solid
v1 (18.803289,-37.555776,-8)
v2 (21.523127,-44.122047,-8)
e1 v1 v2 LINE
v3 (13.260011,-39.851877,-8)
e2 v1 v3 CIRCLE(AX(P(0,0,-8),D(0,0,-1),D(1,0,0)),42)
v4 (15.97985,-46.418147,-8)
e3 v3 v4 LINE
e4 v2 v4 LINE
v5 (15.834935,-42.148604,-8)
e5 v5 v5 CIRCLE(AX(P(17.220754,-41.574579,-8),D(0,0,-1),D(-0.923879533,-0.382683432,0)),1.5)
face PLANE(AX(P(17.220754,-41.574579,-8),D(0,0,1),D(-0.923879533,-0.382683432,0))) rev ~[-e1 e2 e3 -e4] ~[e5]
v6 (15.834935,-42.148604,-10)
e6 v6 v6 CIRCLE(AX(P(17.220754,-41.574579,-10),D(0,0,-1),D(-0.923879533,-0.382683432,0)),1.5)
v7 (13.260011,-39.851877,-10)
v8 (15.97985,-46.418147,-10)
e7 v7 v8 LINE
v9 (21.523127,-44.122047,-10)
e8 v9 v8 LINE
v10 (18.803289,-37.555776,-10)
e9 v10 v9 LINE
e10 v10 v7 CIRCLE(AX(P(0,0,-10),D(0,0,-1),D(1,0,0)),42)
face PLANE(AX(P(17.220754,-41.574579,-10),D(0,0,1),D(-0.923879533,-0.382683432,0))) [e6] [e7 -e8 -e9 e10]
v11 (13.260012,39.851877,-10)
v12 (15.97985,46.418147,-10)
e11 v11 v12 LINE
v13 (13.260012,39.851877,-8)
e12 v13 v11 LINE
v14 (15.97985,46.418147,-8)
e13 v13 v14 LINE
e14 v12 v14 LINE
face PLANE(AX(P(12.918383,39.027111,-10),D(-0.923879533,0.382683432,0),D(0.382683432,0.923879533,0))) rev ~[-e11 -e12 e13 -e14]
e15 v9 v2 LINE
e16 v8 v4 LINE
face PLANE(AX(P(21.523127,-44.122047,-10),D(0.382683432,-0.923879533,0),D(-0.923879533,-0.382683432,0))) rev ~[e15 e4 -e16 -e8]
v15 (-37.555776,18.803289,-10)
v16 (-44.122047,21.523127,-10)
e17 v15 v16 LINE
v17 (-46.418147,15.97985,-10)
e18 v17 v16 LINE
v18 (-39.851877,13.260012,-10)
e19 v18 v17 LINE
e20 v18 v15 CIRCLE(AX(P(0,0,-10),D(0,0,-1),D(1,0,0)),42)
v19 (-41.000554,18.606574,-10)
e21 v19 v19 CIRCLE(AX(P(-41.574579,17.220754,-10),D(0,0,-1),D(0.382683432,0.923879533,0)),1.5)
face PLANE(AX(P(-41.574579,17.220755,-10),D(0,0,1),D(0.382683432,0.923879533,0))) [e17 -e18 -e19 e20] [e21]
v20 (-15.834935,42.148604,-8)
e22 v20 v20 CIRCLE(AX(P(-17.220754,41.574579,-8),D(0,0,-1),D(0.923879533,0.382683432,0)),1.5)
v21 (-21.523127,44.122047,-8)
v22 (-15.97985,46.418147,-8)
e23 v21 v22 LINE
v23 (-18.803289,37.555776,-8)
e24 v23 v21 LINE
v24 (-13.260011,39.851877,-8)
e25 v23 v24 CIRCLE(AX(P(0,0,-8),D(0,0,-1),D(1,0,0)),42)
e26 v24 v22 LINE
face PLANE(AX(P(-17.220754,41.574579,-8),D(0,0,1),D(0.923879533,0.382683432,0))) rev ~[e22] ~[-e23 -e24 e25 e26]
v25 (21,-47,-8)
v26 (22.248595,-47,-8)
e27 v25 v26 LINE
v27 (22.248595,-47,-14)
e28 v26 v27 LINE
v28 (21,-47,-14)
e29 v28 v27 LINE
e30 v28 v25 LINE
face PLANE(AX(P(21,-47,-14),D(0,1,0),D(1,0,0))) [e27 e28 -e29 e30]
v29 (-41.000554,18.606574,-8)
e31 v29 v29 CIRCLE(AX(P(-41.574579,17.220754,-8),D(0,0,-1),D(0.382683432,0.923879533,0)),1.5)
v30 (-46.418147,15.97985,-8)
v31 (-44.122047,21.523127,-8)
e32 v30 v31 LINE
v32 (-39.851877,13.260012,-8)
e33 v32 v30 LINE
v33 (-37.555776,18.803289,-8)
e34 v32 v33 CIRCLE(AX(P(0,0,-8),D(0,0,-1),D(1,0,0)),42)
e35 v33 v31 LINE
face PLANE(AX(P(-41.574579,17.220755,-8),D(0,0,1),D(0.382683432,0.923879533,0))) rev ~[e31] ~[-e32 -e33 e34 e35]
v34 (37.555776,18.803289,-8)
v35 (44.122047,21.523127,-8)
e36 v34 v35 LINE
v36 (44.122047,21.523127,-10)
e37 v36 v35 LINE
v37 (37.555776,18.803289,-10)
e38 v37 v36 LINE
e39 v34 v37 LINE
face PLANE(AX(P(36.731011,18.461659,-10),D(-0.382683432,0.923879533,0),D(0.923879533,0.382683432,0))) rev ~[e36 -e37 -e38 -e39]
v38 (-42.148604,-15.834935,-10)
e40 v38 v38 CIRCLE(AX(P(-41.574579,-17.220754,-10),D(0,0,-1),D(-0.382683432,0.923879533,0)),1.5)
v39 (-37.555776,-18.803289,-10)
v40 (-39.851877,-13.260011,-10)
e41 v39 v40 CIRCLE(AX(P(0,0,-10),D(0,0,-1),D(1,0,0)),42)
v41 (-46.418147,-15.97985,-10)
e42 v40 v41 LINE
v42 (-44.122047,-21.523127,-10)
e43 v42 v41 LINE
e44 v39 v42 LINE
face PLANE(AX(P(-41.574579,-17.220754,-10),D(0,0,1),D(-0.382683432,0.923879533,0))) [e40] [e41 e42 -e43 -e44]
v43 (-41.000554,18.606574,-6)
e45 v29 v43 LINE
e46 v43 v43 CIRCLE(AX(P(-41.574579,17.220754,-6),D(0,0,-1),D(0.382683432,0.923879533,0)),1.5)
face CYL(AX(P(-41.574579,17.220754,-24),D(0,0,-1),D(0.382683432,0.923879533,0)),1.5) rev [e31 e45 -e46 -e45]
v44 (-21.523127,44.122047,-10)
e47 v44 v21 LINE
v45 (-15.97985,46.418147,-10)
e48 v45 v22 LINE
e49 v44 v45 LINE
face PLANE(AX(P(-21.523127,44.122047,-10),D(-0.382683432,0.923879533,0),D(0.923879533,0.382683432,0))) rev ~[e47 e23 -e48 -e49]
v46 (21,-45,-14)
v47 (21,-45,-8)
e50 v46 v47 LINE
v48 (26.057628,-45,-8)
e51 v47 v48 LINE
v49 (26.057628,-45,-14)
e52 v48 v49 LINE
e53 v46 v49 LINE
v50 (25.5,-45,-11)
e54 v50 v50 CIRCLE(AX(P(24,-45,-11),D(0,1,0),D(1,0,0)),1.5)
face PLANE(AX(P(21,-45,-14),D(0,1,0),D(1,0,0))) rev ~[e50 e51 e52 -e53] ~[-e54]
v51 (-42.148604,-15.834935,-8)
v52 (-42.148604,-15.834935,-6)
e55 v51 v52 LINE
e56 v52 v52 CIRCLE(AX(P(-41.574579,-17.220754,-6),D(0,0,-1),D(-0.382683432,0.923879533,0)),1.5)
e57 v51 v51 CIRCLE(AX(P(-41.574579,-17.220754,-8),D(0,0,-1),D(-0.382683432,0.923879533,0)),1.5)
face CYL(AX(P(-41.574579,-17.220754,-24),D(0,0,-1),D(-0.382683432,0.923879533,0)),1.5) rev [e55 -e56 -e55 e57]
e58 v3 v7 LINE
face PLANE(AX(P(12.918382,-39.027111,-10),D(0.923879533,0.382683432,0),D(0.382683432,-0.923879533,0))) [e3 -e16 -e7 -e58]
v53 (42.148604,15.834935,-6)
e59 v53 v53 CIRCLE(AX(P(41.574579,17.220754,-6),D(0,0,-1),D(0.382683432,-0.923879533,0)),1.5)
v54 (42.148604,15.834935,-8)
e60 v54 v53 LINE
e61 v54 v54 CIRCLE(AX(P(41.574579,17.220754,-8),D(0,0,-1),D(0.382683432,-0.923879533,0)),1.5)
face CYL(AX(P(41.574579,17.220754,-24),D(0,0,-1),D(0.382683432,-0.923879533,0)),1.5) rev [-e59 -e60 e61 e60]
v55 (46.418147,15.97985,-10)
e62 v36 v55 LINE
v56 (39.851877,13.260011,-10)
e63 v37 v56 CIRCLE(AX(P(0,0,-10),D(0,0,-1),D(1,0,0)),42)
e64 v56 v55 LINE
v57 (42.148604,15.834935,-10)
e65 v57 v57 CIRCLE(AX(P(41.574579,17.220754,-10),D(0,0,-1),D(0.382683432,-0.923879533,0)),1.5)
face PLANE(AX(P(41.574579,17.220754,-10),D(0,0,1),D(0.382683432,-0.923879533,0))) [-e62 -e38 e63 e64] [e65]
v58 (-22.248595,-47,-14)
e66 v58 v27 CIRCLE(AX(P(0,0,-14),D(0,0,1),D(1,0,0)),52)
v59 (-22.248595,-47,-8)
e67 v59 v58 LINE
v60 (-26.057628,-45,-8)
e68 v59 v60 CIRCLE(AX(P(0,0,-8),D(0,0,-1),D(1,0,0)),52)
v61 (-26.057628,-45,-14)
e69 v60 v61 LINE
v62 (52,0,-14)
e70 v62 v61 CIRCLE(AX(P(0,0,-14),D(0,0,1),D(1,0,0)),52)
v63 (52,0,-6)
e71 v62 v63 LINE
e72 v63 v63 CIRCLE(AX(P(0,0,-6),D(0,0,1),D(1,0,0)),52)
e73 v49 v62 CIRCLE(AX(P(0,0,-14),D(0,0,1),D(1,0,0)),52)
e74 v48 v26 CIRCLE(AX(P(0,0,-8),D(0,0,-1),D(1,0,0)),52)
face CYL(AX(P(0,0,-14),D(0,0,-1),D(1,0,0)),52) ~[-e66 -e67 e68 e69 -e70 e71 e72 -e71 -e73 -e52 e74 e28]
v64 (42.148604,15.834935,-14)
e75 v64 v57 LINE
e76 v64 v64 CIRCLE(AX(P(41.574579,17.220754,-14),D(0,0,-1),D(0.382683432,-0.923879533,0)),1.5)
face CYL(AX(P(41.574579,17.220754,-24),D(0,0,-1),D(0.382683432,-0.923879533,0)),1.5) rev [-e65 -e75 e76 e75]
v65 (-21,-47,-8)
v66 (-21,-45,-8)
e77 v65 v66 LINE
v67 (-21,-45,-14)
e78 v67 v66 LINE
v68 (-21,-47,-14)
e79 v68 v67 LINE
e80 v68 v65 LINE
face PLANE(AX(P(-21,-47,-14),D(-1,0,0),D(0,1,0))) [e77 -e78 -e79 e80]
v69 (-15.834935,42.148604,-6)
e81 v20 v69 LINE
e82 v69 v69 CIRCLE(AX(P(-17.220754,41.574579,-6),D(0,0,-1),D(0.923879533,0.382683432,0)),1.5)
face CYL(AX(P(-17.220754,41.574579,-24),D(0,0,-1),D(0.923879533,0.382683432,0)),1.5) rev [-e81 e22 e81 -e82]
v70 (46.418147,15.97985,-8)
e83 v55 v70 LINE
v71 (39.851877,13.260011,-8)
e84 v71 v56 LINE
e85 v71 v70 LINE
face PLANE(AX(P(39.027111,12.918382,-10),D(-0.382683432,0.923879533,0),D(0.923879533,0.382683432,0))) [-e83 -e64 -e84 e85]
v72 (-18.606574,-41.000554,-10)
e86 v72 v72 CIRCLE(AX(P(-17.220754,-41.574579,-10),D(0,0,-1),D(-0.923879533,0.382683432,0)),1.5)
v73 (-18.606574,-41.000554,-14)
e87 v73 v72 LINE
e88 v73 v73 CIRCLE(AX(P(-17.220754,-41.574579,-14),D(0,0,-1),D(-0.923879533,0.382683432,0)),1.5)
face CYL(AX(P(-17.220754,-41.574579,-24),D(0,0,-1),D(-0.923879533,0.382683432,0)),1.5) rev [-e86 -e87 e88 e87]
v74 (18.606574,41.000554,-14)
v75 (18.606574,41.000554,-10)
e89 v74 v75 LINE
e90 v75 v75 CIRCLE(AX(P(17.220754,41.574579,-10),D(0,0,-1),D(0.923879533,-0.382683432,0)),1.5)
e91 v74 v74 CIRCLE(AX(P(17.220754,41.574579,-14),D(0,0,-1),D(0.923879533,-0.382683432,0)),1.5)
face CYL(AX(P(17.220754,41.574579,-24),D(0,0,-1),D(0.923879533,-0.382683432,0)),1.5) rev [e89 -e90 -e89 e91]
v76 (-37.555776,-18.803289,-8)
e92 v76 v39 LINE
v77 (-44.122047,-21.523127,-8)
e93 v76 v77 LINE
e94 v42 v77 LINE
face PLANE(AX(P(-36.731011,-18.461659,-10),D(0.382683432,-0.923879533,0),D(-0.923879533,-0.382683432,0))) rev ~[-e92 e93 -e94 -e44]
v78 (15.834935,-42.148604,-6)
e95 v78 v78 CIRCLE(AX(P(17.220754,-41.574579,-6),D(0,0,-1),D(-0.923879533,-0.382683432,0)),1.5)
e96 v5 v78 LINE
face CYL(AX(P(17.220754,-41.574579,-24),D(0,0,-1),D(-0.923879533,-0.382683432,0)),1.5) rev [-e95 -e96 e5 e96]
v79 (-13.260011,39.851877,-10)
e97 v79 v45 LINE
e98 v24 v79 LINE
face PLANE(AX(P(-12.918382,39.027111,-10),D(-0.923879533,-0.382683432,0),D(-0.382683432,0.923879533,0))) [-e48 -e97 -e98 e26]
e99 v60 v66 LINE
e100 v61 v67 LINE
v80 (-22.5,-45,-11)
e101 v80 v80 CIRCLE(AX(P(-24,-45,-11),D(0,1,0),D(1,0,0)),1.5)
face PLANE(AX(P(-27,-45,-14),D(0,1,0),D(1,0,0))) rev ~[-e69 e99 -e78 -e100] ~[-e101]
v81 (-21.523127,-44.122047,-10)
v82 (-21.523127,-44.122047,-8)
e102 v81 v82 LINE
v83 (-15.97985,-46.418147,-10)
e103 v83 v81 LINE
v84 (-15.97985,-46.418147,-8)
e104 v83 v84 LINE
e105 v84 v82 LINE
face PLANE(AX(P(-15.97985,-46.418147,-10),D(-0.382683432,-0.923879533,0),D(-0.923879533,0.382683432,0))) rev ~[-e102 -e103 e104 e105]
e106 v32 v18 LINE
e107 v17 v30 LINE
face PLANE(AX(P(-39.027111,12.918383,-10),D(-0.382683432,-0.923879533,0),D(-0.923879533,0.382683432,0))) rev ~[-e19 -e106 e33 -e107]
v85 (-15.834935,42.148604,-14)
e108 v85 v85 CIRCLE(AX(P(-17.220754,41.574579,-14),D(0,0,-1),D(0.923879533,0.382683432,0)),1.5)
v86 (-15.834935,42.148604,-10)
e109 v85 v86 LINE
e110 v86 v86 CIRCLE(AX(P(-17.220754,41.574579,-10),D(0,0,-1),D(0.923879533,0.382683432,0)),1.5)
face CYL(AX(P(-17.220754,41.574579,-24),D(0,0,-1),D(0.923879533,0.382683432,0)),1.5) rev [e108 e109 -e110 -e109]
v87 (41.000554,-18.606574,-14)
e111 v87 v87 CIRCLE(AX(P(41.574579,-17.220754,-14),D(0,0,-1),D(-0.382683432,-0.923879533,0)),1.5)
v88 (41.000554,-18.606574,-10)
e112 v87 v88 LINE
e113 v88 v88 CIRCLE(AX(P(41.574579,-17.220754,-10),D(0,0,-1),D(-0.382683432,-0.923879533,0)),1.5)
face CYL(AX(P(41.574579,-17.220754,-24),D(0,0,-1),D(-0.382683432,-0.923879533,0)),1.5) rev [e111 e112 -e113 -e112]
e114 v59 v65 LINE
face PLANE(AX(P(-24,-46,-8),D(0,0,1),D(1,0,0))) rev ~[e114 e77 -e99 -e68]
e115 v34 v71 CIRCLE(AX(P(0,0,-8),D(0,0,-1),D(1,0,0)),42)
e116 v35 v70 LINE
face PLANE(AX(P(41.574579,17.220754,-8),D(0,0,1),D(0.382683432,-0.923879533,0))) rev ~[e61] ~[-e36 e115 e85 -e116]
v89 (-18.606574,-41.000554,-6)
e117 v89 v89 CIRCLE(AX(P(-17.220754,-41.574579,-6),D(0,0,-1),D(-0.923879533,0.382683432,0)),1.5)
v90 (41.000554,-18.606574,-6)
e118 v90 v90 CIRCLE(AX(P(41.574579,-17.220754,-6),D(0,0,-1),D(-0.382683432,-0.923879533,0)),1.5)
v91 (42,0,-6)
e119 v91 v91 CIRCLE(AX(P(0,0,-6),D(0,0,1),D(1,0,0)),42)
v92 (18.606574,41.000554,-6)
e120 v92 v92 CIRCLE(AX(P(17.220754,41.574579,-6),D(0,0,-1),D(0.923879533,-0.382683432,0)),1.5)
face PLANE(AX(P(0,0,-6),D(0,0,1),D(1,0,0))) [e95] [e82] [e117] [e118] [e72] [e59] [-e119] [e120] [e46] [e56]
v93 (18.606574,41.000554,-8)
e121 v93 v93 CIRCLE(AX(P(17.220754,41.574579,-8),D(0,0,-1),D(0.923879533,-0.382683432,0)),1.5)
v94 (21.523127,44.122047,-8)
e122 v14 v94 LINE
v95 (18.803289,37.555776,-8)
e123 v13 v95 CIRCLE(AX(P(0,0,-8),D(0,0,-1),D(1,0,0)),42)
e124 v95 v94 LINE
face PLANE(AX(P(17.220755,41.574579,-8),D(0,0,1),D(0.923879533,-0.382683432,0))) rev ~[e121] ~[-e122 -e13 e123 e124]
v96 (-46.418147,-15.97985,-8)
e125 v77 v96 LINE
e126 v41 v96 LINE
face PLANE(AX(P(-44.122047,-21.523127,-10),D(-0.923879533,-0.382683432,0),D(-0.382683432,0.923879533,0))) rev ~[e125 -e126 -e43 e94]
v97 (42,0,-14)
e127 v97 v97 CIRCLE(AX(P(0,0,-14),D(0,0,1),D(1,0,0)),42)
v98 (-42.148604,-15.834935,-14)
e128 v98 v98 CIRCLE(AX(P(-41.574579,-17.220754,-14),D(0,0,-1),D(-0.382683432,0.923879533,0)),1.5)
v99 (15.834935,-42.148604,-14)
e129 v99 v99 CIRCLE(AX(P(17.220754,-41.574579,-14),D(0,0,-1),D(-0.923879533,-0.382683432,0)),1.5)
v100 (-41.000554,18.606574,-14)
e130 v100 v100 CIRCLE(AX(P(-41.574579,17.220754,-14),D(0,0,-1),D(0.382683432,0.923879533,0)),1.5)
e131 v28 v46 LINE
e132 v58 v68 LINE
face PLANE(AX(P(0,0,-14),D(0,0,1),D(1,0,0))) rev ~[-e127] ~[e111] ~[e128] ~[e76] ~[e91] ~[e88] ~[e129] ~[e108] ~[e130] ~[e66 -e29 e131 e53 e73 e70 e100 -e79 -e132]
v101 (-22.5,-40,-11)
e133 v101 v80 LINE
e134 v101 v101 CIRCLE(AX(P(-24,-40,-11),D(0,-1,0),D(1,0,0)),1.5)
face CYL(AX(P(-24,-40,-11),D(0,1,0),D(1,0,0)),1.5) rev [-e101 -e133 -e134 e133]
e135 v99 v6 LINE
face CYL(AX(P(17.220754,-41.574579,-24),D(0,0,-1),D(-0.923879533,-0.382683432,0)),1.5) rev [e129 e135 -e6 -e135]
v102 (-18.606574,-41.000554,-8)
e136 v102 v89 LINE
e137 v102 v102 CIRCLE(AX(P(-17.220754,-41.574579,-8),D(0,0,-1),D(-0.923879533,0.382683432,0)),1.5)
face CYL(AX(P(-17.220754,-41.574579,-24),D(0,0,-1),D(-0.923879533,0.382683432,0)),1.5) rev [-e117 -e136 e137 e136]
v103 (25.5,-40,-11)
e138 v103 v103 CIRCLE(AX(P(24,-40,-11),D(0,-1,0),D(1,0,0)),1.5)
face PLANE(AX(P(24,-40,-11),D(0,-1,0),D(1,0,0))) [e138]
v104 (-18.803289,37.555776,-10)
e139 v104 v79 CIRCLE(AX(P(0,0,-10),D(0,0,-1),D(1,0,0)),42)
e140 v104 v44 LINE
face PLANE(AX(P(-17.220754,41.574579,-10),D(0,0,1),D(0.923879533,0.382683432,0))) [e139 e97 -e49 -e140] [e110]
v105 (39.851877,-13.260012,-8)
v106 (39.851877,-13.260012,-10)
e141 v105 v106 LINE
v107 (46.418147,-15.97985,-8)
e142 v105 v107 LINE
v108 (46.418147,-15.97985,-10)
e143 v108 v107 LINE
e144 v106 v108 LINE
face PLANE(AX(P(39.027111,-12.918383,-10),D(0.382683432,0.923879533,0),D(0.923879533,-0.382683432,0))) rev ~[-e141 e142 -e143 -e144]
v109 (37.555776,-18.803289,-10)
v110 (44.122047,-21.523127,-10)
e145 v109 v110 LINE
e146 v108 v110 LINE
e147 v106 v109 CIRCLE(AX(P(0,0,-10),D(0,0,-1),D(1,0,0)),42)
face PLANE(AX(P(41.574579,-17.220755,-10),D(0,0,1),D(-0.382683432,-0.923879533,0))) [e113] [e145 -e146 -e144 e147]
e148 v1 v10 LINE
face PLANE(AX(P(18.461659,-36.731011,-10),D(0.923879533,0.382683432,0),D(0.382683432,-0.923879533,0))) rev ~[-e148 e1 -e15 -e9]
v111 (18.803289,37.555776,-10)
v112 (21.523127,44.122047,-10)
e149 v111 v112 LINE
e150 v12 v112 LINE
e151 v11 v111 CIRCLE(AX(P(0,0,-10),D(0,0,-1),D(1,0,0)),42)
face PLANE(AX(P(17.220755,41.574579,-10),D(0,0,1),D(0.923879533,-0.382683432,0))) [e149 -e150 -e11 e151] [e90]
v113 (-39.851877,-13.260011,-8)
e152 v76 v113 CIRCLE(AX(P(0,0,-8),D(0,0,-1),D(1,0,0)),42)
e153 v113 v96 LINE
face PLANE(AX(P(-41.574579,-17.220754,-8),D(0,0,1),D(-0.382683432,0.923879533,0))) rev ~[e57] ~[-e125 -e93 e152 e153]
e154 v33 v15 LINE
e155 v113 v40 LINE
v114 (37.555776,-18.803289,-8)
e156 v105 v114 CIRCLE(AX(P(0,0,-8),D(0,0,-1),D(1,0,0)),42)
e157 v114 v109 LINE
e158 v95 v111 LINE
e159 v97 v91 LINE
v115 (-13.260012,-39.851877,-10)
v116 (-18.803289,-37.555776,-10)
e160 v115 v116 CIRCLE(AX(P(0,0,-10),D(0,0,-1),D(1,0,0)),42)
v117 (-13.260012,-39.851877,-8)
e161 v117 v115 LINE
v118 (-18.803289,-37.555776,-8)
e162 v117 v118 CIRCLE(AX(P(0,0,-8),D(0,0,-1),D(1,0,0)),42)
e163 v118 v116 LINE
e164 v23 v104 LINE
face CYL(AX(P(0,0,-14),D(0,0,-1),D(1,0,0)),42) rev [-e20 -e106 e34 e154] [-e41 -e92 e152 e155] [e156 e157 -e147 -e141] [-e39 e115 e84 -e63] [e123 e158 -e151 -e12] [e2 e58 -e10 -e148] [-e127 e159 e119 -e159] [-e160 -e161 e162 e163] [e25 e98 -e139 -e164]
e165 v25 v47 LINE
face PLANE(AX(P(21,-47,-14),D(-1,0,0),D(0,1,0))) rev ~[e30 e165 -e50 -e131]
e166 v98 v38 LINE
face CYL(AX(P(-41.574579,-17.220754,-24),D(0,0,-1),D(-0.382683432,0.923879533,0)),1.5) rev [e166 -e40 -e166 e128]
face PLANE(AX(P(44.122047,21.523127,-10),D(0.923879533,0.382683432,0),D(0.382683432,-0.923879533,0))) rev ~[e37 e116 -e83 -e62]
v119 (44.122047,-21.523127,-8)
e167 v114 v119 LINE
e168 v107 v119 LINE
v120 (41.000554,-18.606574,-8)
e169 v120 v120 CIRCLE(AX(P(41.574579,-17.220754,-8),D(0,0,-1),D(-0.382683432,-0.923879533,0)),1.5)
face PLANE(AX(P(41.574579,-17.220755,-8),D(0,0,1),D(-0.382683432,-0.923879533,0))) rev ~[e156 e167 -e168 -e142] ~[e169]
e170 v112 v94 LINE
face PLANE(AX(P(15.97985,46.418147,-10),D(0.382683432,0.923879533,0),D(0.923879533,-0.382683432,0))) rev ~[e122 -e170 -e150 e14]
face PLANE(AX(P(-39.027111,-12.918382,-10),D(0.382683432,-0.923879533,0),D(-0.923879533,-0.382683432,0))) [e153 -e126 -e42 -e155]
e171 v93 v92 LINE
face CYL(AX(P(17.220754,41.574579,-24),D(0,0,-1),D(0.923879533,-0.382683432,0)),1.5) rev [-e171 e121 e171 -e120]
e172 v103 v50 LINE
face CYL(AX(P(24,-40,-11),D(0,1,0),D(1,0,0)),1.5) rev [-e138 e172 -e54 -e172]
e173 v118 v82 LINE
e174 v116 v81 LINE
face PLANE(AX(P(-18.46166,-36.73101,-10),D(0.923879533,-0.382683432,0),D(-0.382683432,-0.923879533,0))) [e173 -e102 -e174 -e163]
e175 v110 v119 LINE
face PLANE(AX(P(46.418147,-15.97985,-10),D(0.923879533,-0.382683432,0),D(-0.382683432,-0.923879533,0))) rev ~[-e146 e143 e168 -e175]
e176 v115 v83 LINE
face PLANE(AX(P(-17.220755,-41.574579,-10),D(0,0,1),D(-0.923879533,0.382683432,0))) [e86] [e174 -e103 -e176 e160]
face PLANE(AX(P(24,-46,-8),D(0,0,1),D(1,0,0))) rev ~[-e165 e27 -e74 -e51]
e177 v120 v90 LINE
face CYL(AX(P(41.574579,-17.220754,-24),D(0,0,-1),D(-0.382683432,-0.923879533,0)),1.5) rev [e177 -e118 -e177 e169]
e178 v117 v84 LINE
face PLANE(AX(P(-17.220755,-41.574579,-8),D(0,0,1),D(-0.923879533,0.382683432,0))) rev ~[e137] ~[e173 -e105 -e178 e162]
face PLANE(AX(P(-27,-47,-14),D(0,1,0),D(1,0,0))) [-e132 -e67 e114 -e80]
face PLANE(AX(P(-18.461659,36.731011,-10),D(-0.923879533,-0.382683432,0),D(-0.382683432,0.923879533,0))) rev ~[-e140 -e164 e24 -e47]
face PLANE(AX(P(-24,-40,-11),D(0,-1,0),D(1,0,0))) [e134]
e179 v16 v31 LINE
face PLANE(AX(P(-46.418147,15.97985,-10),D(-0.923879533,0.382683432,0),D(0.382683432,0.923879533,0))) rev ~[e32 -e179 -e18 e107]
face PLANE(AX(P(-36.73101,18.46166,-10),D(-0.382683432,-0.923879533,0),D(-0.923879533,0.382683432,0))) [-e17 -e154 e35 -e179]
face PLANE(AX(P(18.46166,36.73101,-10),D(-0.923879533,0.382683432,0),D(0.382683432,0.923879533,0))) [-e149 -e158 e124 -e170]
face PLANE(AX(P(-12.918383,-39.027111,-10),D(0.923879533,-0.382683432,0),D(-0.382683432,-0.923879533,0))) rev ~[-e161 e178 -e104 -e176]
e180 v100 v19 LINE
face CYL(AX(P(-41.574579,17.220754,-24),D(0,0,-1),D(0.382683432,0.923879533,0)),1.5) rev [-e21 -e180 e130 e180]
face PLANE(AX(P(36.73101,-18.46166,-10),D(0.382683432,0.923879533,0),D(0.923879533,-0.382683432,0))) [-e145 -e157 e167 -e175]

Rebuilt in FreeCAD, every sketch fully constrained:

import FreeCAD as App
import Part
import Sketcher
from FreeCAD import Vector

doc = App.newDocument("Part")
body = doc.addObject("PartDesign::Body", "Body")

sketch1 = body.newObject("Sketcher::SketchObject", "Sketch")
sketch1.AttachmentSupport = (doc.getObject("XY_Plane"), [""])
sketch1.MapMode = "FlatFace"
sketch1.addGeometry(Part.Circle(Vector(0, 0, 0), Vector(0, 0, 1), 1.5), False)
sketch1.addConstraint([
    Sketcher.Constraint("Coincident", 0, 3, -1, 1),
    Sketcher.Constraint("Diameter", 0, 3.0),
])
pad1 = body.newObject("PartDesign::Pad", "Pad")
pad1.Profile = sketch1
pad1.Length = 20
body2 = doc.addObject("PartDesign::Body", "Body001")
doc.recompute()

body.Placement = App.Placement(Vector(-31.819805, 31.819805, -18), App.Rotation(Vector(0, 0, 1), 45))
boolean = body2.newObject("PartDesign::Boolean", "Boolean")
boolean.Type = "Fuse"
boolean.addObjects([body])
body3 = doc.addObject("PartDesign::Body", "Body002")

sketch2 = body3.newObject("Sketcher::SketchObject", "Sketch001")
sketch2.AttachmentSupport = (doc.getObject("XY_Plane002"), [""])
sketch2.MapMode = "FlatFace"
sketch2.AttachmentOffset = App.Placement(Vector(0, 0, -18), App.Rotation())
sketch2.addGeometry(Part.Circle(Vector(-45, 0, 0), Vector(0, 0, 1), 1.5), False)
sketch2.addConstraint([
    Sketcher.Constraint("PointOnObject", 0, 3, -1),
    Sketcher.Constraint("Diameter", 0, 3.0),
    Sketcher.Constraint("DistanceX", 0, 3, -1, 1, 45.0),
])
pad2 = body3.newObject("PartDesign::Pad", "Pad001")
pad2.Profile = sketch2
pad2.Length = 20
body4 = doc.addObject("PartDesign::Body", "Body003")

sketch3 = body4.newObject("Sketcher::SketchObject", "Sketch002")
sketch3.AttachmentSupport = (doc.getObject("XY_Plane003"), [""])
sketch3.MapMode = "FlatFace"
sketch3.addGeometry(Part.Circle(Vector(0, 0, 0), Vector(0, 0, 1), 1.5), False)
sketch3.addConstraint([
    Sketcher.Constraint("Coincident", 0, 3, -1, 1),
    Sketcher.Constraint("Diameter", 0, 3.0),
])
pad3 = body4.newObject("PartDesign::Pad", "Pad002")
pad3.Profile = sketch3
pad3.Length = 20
body5 = doc.addObject("PartDesign::Body", "Body004")
doc.recompute()

body4.Placement = App.Placement(Vector(-31.819805, -31.819805, -18), App.Rotation(Vector(0, 0, 1), 135))
boolean2 = body5.newObject("PartDesign::Boolean", "Boolean001")
boolean2.Type = "Fuse"
boolean2.addObjects([body4])
body6 = doc.addObject("PartDesign::Body", "Body005")

sketch4 = body6.newObject("Sketcher::SketchObject", "Sketch003")
sketch4.AttachmentSupport = (doc.getObject("XY_Plane005"), [""])
sketch4.MapMode = "FlatFace"
sketch4.AttachmentOffset = App.Placement(Vector(0, 0, -18), App.Rotation())
sketch4.addGeometry(Part.Circle(Vector(0, -45, 0), Vector(0, 0, 1), 1.5), False)
sketch4.addConstraint([
    Sketcher.Constraint("PointOnObject", 0, 3, -2),
    Sketcher.Constraint("Diameter", 0, 3.0),
    Sketcher.Constraint("DistanceY", 0, 3, -1, 1, 45.0),
])
pad4 = body6.newObject("PartDesign::Pad", "Pad003")
pad4.Profile = sketch4
pad4.Length = 20
body7 = doc.addObject("PartDesign::Body", "Body006")

sketch5 = body7.newObject("Sketcher::SketchObject", "Sketch004")
sketch5.AttachmentSupport = (doc.getObject("XY_Plane006"), [""])
sketch5.MapMode = "FlatFace"
sketch5.addGeometry(Part.Circle(Vector(0, 0, 0), Vector(0, 0, 1), 1.5), False)
sketch5.addConstraint([
    Sketcher.Constraint("Coincident", 0, 3, -1, 1),
    Sketcher.Constraint("Diameter", 0, 3.0),
])
pad5 = body7.newObject("PartDesign::Pad", "Pad004")
pad5.Profile = sketch5
pad5.Length = 20
body8 = doc.addObject("PartDesign::Body", "Body007")
doc.recompute()

body7.Placement = App.Placement(Vector(31.819805, -31.819805, -18), App.Rotation(Vector(0, 0, 1), 225))
boolean3 = body8.newObject("PartDesign::Boolean", "Boolean002")
boolean3.Type = "Fuse"
boolean3.addObjects([body7])
body9 = doc.addObject("PartDesign::Body", "Body008")

sketch6 = body9.newObject("Sketcher::SketchObject", "Sketch005")
sketch6.AttachmentSupport = (doc.getObject("XY_Plane008"), [""])
sketch6.MapMode = "FlatFace"
sketch6.AttachmentOffset = App.Placement(Vector(0, 0, -18), App.Rotation())
sketch6.addGeometry(Part.Circle(Vector(45, 0, 0), Vector(0, 0, 1), 1.5), False)
sketch6.addConstraint([
    Sketcher.Constraint("PointOnObject", 0, 3, -1),
    Sketcher.Constraint("Diameter", 0, 3.0),
    Sketcher.Constraint("DistanceX", -1, 1, 0, 3, 45.0),
])
pad6 = body9.newObject("PartDesign::Pad", "Pad005")
pad6.Profile = sketch6
pad6.Length = 20
body10 = doc.addObject("PartDesign::Body", "Body009")

sketch7 = body10.newObject("Sketcher::SketchObject", "Sketch006")
sketch7.AttachmentSupport = (doc.getObject("XY_Plane009"), [""])
sketch7.MapMode = "FlatFace"
sketch7.addGeometry(Part.Circle(Vector(0, 0, 0), Vector(0, 0, 1), 1.5), False)
sketch7.addConstraint([
    Sketcher.Constraint("Coincident", 0, 3, -1, 1),
    Sketcher.Constraint("Diameter", 0, 3.0),
])
pad7 = body10.newObject("PartDesign::Pad", "Pad006")
pad7.Profile = sketch7
pad7.Length = 20
body11 = doc.addObject("PartDesign::Body", "Body010")
doc.recompute()

body10.Placement = App.Placement(Vector(31.819805, 31.819805, -18), App.Rotation(Vector(0, 0, -1), 45))
boolean4 = body11.newObject("PartDesign::Boolean", "Boolean003")
boolean4.Type = "Fuse"
boolean4.addObjects([body10])
body12 = doc.addObject("PartDesign::Body", "Body011")
body12.AllowCompound = True

sketch8 = body12.newObject("Sketcher::SketchObject", "Sketch007")
sketch8.AttachmentSupport = (doc.getObject("XY_Plane011"), [""])
sketch8.MapMode = "FlatFace"
sketch8.AttachmentOffset = App.Placement(Vector(0, 0, -18), App.Rotation())
sketch8.addGeometry(Part.Circle(Vector(0, 45, 0), Vector(0, 0, 1), 1.5), False)
sketch8.addConstraint([
    Sketcher.Constraint("PointOnObject", 0, 3, -2),
    Sketcher.Constraint("Diameter", 0, 3.0),
    Sketcher.Constraint("DistanceY", -1, 1, 0, 3, 45.0),
])
pad8 = body12.newObject("PartDesign::Pad", "Pad007")
pad8.Profile = sketch8
pad8.Length = 20
doc.recompute()

boolean5 = body12.newObject("PartDesign::Boolean", "Boolean004")
boolean5.Type = "Fuse"
boolean5.addObjects([body2])
doc.recompute()

boolean6 = body12.newObject("PartDesign::Boolean", "Boolean005")
boolean6.Type = "Fuse"
boolean6.addObjects([body3])
doc.recompute()

boolean7 = body12.newObject("PartDesign::Boolean", "Boolean006")
boolean7.Type = "Fuse"
boolean7.addObjects([body5])
doc.recompute()

boolean8 = body12.newObject("PartDesign::Boolean", "Boolean007")
boolean8.Type = "Fuse"
boolean8.addObjects([body6])
doc.recompute()

boolean9 = body12.newObject("PartDesign::Boolean", "Boolean008")
boolean9.Type = "Fuse"
boolean9.addObjects([body8])
doc.recompute()

boolean10 = body12.newObject("PartDesign::Boolean", "Boolean009")
boolean10.Type = "Fuse"
boolean10.addObjects([body9])
doc.recompute()

boolean11 = body12.newObject("PartDesign::Boolean", "Boolean010")
boolean11.Type = "Fuse"
boolean11.addObjects([body11])
body13 = doc.addObject("PartDesign::Body", "Body012")
body13.AllowCompound = True
doc.recompute()

body12.Placement = App.Placement(Vector(0, 0, 0), App.Rotation(Vector(0, 0, 1), 22.5))
boolean12 = body13.newObject("PartDesign::Boolean", "Boolean011")
boolean12.Type = "Fuse"
boolean12.addObjects([body12])
body14 = doc.addObject("PartDesign::Body", "Body013")

sketch9 = body14.newObject("Sketcher::SketchObject", "Sketch008")
sketch9.AttachmentSupport = (doc.getObject("XY_Plane013"), [""])
sketch9.MapMode = "FlatFace"
sketch9.addGeometry([
    Part.LineSegment(Vector(0, 8, 0), Vector(0, 0, 0)),
    Part.LineSegment(Vector(0, 0, 0), Vector(6, 0, 0)),
    Part.LineSegment(Vector(6, 0, 0), Vector(6, 8, 0)),
    Part.LineSegment(Vector(6, 8, 0), Vector(0, 8, 0)),
], False)
sketch9.addConstraint([
    Sketcher.Constraint("Coincident", 0, 2, 1, 1),
    Sketcher.Constraint("Coincident", 1, 2, 2, 1),
    Sketcher.Constraint("Coincident", 2, 2, 3, 1),
    Sketcher.Constraint("Coincident", 3, 2, 0, 1),
    Sketcher.Constraint("Vertical", 0),
    Sketcher.Constraint("Horizontal", 1),
    Sketcher.Constraint("Vertical", 2),
    Sketcher.Constraint("Horizontal", 3),
    Sketcher.Constraint("Coincident", 0, 2, -1, 1),
    Sketcher.Constraint("DistanceX", 1, 1, 1, 2, 6.0),
    Sketcher.Constraint("DistanceY", 0, 2, 0, 1, 8.0),
])
pad9 = body14.newObject("PartDesign::Pad", "Pad008")
pad9.Profile = sketch9
pad9.Length = 2
body15 = doc.addObject("PartDesign::Body", "Body014")
doc.recompute()

body14.Placement = App.Placement(Vector(-31.112698, 26.870058, -4), App.Rotation(Vector(0, 0, 1), 45))
boolean13 = body15.newObject("PartDesign::Boolean", "Boolean012")
boolean13.Type = "Fuse"
boolean13.addObjects([body14])
body16 = doc.addObject("PartDesign::Body", "Body015")

sketch10 = body16.newObject("Sketcher::SketchObject", "Sketch009")
sketch10.AttachmentSupport = (doc.getObject("XY_Plane015"), [""])
sketch10.MapMode = "FlatFace"
sketch10.AttachmentOffset = App.Placement(Vector(0, 0, -4), App.Rotation())
sketch10.addGeometry([
    Part.LineSegment(Vector(-49, -3, 0), Vector(-41, -3, 0)),
    Part.LineSegment(Vector(-41, -3, 0), Vector(-41, 3, 0)),
    Part.LineSegment(Vector(-41, 3, 0), Vector(-49, 3, 0)),
    Part.LineSegment(Vector(-49, 3, 0), Vector(-49, -3, 0)),
], False)
sketch10.addConstraint([
    Sketcher.Constraint("Coincident", 0, 2, 1, 1),
    Sketcher.Constraint("Coincident", 1, 2, 2, 1),
    Sketcher.Constraint("Coincident", 2, 2, 3, 1),
    Sketcher.Constraint("Coincident", 3, 2, 0, 1),
    Sketcher.Constraint("Horizontal", 0),
    Sketcher.Constraint("Vertical", 1),
    Sketcher.Constraint("Horizontal", 2),
    Sketcher.Constraint("Vertical", 3),
    Sketcher.Constraint("DistanceX", 0, 1, 0, 2, 8.0),
    Sketcher.Constraint("DistanceY", 1, 1, 1, 2, 6.0),
    Sketcher.Constraint("DistanceX", 0, 2, -1, 1, 41.0),
    Sketcher.Constraint("DistanceY", 0, 2, -1, 1, 3.0),
])
pad10 = body16.newObject("PartDesign::Pad", "Pad009")
pad10.Profile = sketch10
pad10.Length = 2
body17 = doc.addObject("PartDesign::Body", "Body016")

sketch11 = body17.newObject("Sketcher::SketchObject", "Sketch010")
sketch11.AttachmentSupport = (doc.getObject("XY_Plane016"), [""])
sketch11.MapMode = "FlatFace"
sketch11.addGeometry([
    Part.LineSegment(Vector(0, 8, 0), Vector(0, 0, 0)),
    Part.LineSegment(Vector(0, 0, 0), Vector(6, 0, 0)),
    Part.LineSegment(Vector(6, 0, 0), Vector(6, 8, 0)),
    Part.LineSegment(Vector(6, 8, 0), Vector(0, 8, 0)),
], False)
sketch11.addConstraint([
    Sketcher.Constraint("Coincident", 0, 2, 1, 1),
    Sketcher.Constraint("Coincident", 1, 2, 2, 1),
    Sketcher.Constraint("Coincident", 2, 2, 3, 1),
    Sketcher.Constraint("Coincident", 3, 2, 0, 1),
    Sketcher.Constraint("Vertical", 0),
    Sketcher.Constraint("Horizontal", 1),
    Sketcher.Constraint("Vertical", 2),
    Sketcher.Constraint("Horizontal", 3),
    Sketcher.Constraint("Coincident", 0, 2, -1, 1),
    Sketcher.Constraint("DistanceX", 1, 1, 1, 2, 6.0),
    Sketcher.Constraint("DistanceY", 0, 2, 0, 1, 8.0),
])
pad11 = body17.newObject("PartDesign::Pad", "Pad010")
pad11.Profile = sketch11
pad11.Length = 2
body18 = doc.addObject("PartDesign::Body", "Body017")
doc.recompute()

body17.Placement = App.Placement(Vector(-26.870058, -31.112698, -4), App.Rotation(Vector(0, 0, 1), 135))
boolean14 = body18.newObject("PartDesign::Boolean", "Boolean013")
boolean14.Type = "Fuse"
boolean14.addObjects([body17])
body19 = doc.addObject("PartDesign::Body", "Body018")

sketch12 = body19.newObject("Sketcher::SketchObject", "Sketch011")
sketch12.AttachmentSupport = (doc.getObject("XY_Plane018"), [""])
sketch12.MapMode = "FlatFace"
sketch12.AttachmentOffset = App.Placement(Vector(0, 0, -4), App.Rotation())
sketch12.addGeometry([
    Part.LineSegment(Vector(3, -49, 0), Vector(3, -41, 0)),
    Part.LineSegment(Vector(3, -41, 0), Vector(-3, -41, 0)),
    Part.LineSegment(Vector(-3, -41, 0), Vector(-3, -49, 0)),
    Part.LineSegment(Vector(-3, -49, 0), Vector(3, -49, 0)),
], False)
sketch12.addConstraint([
    Sketcher.Constraint("Coincident", 0, 2, 1, 1),
    Sketcher.Constraint("Coincident", 1, 2, 2, 1),
    Sketcher.Constraint("Coincident", 2, 2, 3, 1),
    Sketcher.Constraint("Coincident", 3, 2, 0, 1),
    Sketcher.Constraint("Vertical", 0),
    Sketcher.Constraint("Horizontal", 1),
    Sketcher.Constraint("Vertical", 2),
    Sketcher.Constraint("Horizontal", 3),
    Sketcher.Constraint("DistanceX", 1, 2, 1, 1, 6.0),
    Sketcher.Constraint("DistanceY", 0, 1, 0, 2, 8.0),
    Sketcher.Constraint("DistanceX", -1, 1, 0, 2, 3.0),
    Sketcher.Constraint("DistanceY", 0, 2, -1, 1, 41.0),
])
pad12 = body19.newObject("PartDesign::Pad", "Pad011")
pad12.Profile = sketch12
pad12.Length = 2
body20 = doc.addObject("PartDesign::Body", "Body019")

sketch13 = body20.newObject("Sketcher::SketchObject", "Sketch012")
sketch13.AttachmentSupport = (doc.getObject("XY_Plane019"), [""])
sketch13.MapMode = "FlatFace"
sketch13.addGeometry([
    Part.LineSegment(Vector(0, 8, 0), Vector(0, 0, 0)),
    Part.LineSegment(Vector(0, 0, 0), Vector(6, 0, 0)),
    Part.LineSegment(Vector(6, 0, 0), Vector(6, 8, 0)),
    Part.LineSegment(Vector(6, 8, 0), Vector(0, 8, 0)),
], False)
sketch13.addConstraint([
    Sketcher.Constraint("Coincident", 0, 2, 1, 1),
    Sketcher.Constraint("Coincident", 1, 2, 2, 1),
    Sketcher.Constraint("Coincident", 2, 2, 3, 1),
    Sketcher.Constraint("Coincident", 3, 2, 0, 1),
    Sketcher.Constraint("Vertical", 0),
    Sketcher.Constraint("Horizontal", 1),
    Sketcher.Constraint("Vertical", 2),
    Sketcher.Constraint("Horizontal", 3),
    Sketcher.Constraint("Coincident", 0, 2, -1, 1),
    Sketcher.Constraint("DistanceX", 1, 1, 1, 2, 6.0),
    Sketcher.Constraint("DistanceY", 0, 2, 0, 1, 8.0),
])
pad13 = body20.newObject("PartDesign::Pad", "Pad012")
pad13.Profile = sketch13
pad13.Length = 2
body21 = doc.addObject("PartDesign::Body", "Body020")
doc.recompute()

body20.Placement = App.Placement(Vector(31.112698, -26.870058, -4), App.Rotation(Vector(0, 0, 1), 225))
boolean15 = body21.newObject("PartDesign::Boolean", "Boolean014")
boolean15.Type = "Fuse"
boolean15.addObjects([body20])
body22 = doc.addObject("PartDesign::Body", "Body021")

sketch14 = body22.newObject("Sketcher::SketchObject", "Sketch013")
sketch14.AttachmentSupport = (doc.getObject("XY_Plane021"), [""])
sketch14.MapMode = "FlatFace"
sketch14.AttachmentOffset = App.Placement(Vector(0, 0, -4), App.Rotation())
sketch14.addGeometry([
    Part.LineSegment(Vector(49, 3, 0), Vector(41, 3, 0)),
    Part.LineSegment(Vector(41, 3, 0), Vector(41, -3, 0)),
    Part.LineSegment(Vector(41, -3, 0), Vector(49, -3, 0)),
    Part.LineSegment(Vector(49, -3, 0), Vector(49, 3, 0)),
], False)
sketch14.addConstraint([
    Sketcher.Constraint("Coincident", 0, 2, 1, 1),
    Sketcher.Constraint("Coincident", 1, 2, 2, 1),
    Sketcher.Constraint("Coincident", 2, 2, 3, 1),
    Sketcher.Constraint("Coincident", 3, 2, 0, 1),
    Sketcher.Constraint("Horizontal", 0),
    Sketcher.Constraint("Vertical", 1),
    Sketcher.Constraint("Horizontal", 2),
    Sketcher.Constraint("Vertical", 3),
    Sketcher.Constraint("DistanceX", 0, 2, 0, 1, 8.0),
    Sketcher.Constraint("DistanceY", 1, 2, 1, 1, 6.0),
    Sketcher.Constraint("DistanceX", -1, 1, 0, 2, 41.0),
    Sketcher.Constraint("DistanceY", -1, 1, 0, 2, 3.0),
])
pad14 = body22.newObject("PartDesign::Pad", "Pad013")
pad14.Profile = sketch14
pad14.Length = 2
body23 = doc.addObject("PartDesign::Body", "Body022")

sketch15 = body23.newObject("Sketcher::SketchObject", "Sketch014")
sketch15.AttachmentSupport = (doc.getObject("XY_Plane022"), [""])
sketch15.MapMode = "FlatFace"
sketch15.addGeometry([
    Part.LineSegment(Vector(0, 8, 0), Vector(0, 0, 0)),
    Part.LineSegment(Vector(0, 0, 0), Vector(6, 0, 0)),
    Part.LineSegment(Vector(6, 0, 0), Vector(6, 8, 0)),
    Part.LineSegment(Vector(6, 8, 0), Vector(0, 8, 0)),
], False)
sketch15.addConstraint([
    Sketcher.Constraint("Coincident", 0, 2, 1, 1),
    Sketcher.Constraint("Coincident", 1, 2, 2, 1),
    Sketcher.Constraint("Coincident", 2, 2, 3, 1),
    Sketcher.Constraint("Coincident", 3, 2, 0, 1),
    Sketcher.Constraint("Vertical", 0),
    Sketcher.Constraint("Horizontal", 1),
    Sketcher.Constraint("Vertical", 2),
    Sketcher.Constraint("Horizontal", 3),
    Sketcher.Constraint("Coincident", 0, 2, -1, 1),
    Sketcher.Constraint("DistanceX", 1, 1, 1, 2, 6.0),
    Sketcher.Constraint("DistanceY", 0, 2, 0, 1, 8.0),
])
pad15 = body23.newObject("PartDesign::Pad", "Pad014")
pad15.Profile = sketch15
pad15.Length = 2
body24 = doc.addObject("PartDesign::Body", "Body023")
doc.recompute()

body23.Placement = App.Placement(Vector(26.870058, 31.112698, -4), App.Rotation(Vector(0, 0, -1), 45))
boolean16 = body24.newObject("PartDesign::Boolean", "Boolean015")
boolean16.Type = "Fuse"
boolean16.addObjects([body23])
body25 = doc.addObject("PartDesign::Body", "Body024")
body25.AllowCompound = True

sketch16 = body25.newObject("Sketcher::SketchObject", "Sketch015")
sketch16.AttachmentSupport = (doc.getObject("XY_Plane024"), [""])
sketch16.MapMode = "FlatFace"
sketch16.AttachmentOffset = App.Placement(Vector(0, 0, -4), App.Rotation())
sketch16.addGeometry([
    Part.LineSegment(Vector(-3, 49, 0), Vector(-3, 41, 0)),
    Part.LineSegment(Vector(-3, 41, 0), Vector(3, 41, 0)),
    Part.LineSegment(Vector(3, 41, 0), Vector(3, 49, 0)),
    Part.LineSegment(Vector(3, 49, 0), Vector(-3, 49, 0)),
], False)
sketch16.addConstraint([
    Sketcher.Constraint("Coincident", 0, 2, 1, 1),
    Sketcher.Constraint("Coincident", 1, 2, 2, 1),
    Sketcher.Constraint("Coincident", 2, 2, 3, 1),
    Sketcher.Constraint("Coincident", 3, 2, 0, 1),
    Sketcher.Constraint("Vertical", 0),
    Sketcher.Constraint("Horizontal", 1),
    Sketcher.Constraint("Vertical", 2),
    Sketcher.Constraint("Horizontal", 3),
    Sketcher.Constraint("DistanceX", 1, 1, 1, 2, 6.0),
    Sketcher.Constraint("DistanceY", 0, 2, 0, 1, 8.0),
    Sketcher.Constraint("DistanceX", 0, 2, -1, 1, 3.0),
    Sketcher.Constraint("DistanceY", -1, 1, 0, 2, 41.0),
])
pad16 = body25.newObject("PartDesign::Pad", "Pad015")
pad16.Profile = sketch16
pad16.Length = 2
doc.recompute()

boolean17 = body25.newObject("PartDesign::Boolean", "Boolean016")
boolean17.Type = "Fuse"
boolean17.addObjects([body15])
doc.recompute()

boolean18 = body25.newObject("PartDesign::Boolean", "Boolean017")
boolean18.Type = "Fuse"
boolean18.addObjects([body16])
doc.recompute()

boolean19 = body25.newObject("PartDesign::Boolean", "Boolean018")
boolean19.Type = "Fuse"
boolean19.addObjects([body18])
doc.recompute()

boolean20 = body25.newObject("PartDesign::Boolean", "Boolean019")
boolean20.Type = "Fuse"
boolean20.addObjects([body19])
doc.recompute()

boolean21 = body25.newObject("PartDesign::Boolean", "Boolean020")
boolean21.Type = "Fuse"
boolean21.addObjects([body21])
doc.recompute()

boolean22 = body25.newObject("PartDesign::Boolean", "Boolean021")
boolean22.Type = "Fuse"
boolean22.addObjects([body22])
doc.recompute()

boolean23 = body25.newObject("PartDesign::Boolean", "Boolean022")
boolean23.Type = "Fuse"
boolean23.addObjects([body24])
body26 = doc.addObject("PartDesign::Body", "Body025")
body26.AllowCompound = True
doc.recompute()

body25.Placement = App.Placement(Vector(0, 0, 0), App.Rotation(Vector(0, 0, 1), 22.5))
boolean24 = body26.newObject("PartDesign::Boolean", "Boolean023")
boolean24.Type = "Fuse"
boolean24.addObjects([body25])
body27 = doc.addObject("PartDesign::Body", "Body026")

sketch17 = body27.newObject("Sketcher::SketchObject", "Sketch016")
sketch17.AttachmentSupport = (doc.getObject("XZ_Plane026"), [""])
sketch17.MapMode = "FlatFace"
sketch17.AttachmentOffset = App.Placement(Vector(0, 0, 40), App.Rotation())
sketch17.addGeometry(Part.Circle(Vector(24, -5, 0), Vector(0, 0, 1), 1.5), False)
sketch17.addConstraint([
    Sketcher.Constraint("Diameter", 0, 3.0),
    Sketcher.Constraint("DistanceX", -1, 1, 0, 3, 24.0),
    Sketcher.Constraint("DistanceY", 0, 3, -1, 1, 5.0),
])
pad17 = body27.newObject("PartDesign::Pad", "Pad016")
pad17.Profile = sketch17
pad17.Length = 20
body28 = doc.addObject("PartDesign::Body", "Body027")

sketch18 = body28.newObject("Sketcher::SketchObject", "Sketch017")
sketch18.AttachmentSupport = (doc.getObject("XZ_Plane027"), [""])
sketch18.MapMode = "FlatFace"
sketch18.AttachmentOffset = App.Placement(Vector(0, 0, 40), App.Rotation())
sketch18.addGeometry(Part.Circle(Vector(51, 7, 0), Vector(0, 0, 1), 1.5), False)
sketch18.addConstraint([
    Sketcher.Constraint("Diameter", 0, 3.0),
    Sketcher.Constraint("DistanceX", -1, 1, 0, 3, 51.0),
    Sketcher.Constraint("DistanceY", -1, 1, 0, 3, 7.0),
])
pad18 = body28.newObject("PartDesign::Pad", "Pad017")
pad18.Profile = sketch18
pad18.Length = 20
body29 = doc.addObject("PartDesign::Body", "Body028")

sketch19 = body29.newObject("Sketcher::SketchObject", "Sketch018")
sketch19.AttachmentSupport = (doc.getObject("XZ_Plane028"), [""])
sketch19.MapMode = "FlatFace"
sketch19.AttachmentOffset = App.Placement(Vector(0, 0, 40), App.Rotation())
sketch19.addGeometry(Part.Circle(Vector(-51, 7, 0), Vector(0, 0, 1), 1.5), False)
sketch19.addConstraint([
    Sketcher.Constraint("Diameter", 0, 3.0),
    Sketcher.Constraint("DistanceX", 0, 3, -1, 1, 51.0),
    Sketcher.Constraint("DistanceY", -1, 1, 0, 3, 7.0),
])
pad19 = body29.newObject("PartDesign::Pad", "Pad018")
pad19.Profile = sketch19
pad19.Length = 20
body30 = doc.addObject("PartDesign::Body", "Body029")
body30.AllowCompound = True

sketch20 = body30.newObject("Sketcher::SketchObject", "Sketch019")
sketch20.AttachmentSupport = (doc.getObject("XZ_Plane029"), [""])
sketch20.MapMode = "FlatFace"
sketch20.AttachmentOffset = App.Placement(Vector(0, 0, 40), App.Rotation())
sketch20.addGeometry(Part.Circle(Vector(-24, -5, 0), Vector(0, 0, 1), 1.5), False)
sketch20.addConstraint([
    Sketcher.Constraint("Diameter", 0, 3.0),
    Sketcher.Constraint("DistanceX", 0, 3, -1, 1, 24.0),
    Sketcher.Constraint("DistanceY", 0, 3, -1, 1, 5.0),
])
pad20 = body30.newObject("PartDesign::Pad", "Pad019")
pad20.Profile = sketch20
pad20.Length = 20
doc.recompute()

boolean25 = body30.newObject("PartDesign::Boolean", "Boolean024")
boolean25.Type = "Fuse"
boolean25.addObjects([body27])
doc.recompute()

boolean26 = body30.newObject("PartDesign::Boolean", "Boolean025")
boolean26.Type = "Fuse"
boolean26.addObjects([body28])
doc.recompute()

boolean27 = body30.newObject("PartDesign::Boolean", "Boolean026")
boolean27.Type = "Fuse"
boolean27.addObjects([body29])
body31 = doc.addObject("PartDesign::Body", "Body030")

sketch21 = body31.newObject("Sketcher::SketchObject", "Sketch020")
sketch21.AttachmentSupport = (doc.getObject("XY_Plane030"), [""])
sketch21.MapMode = "FlatFace"
sketch21.AttachmentOffset = App.Placement(Vector(0, 0, -8), App.Rotation())
sketch21.addGeometry([
    Part.LineSegment(Vector(21, -45, 0), Vector(21, -47, 0)),
    Part.LineSegment(Vector(21, -47, 0), Vector(27, -47, 0)),
    Part.LineSegment(Vector(27, -47, 0), Vector(27, -45, 0)),
    Part.LineSegment(Vector(27, -45, 0), Vector(21, -45, 0)),
], False)
sketch21.addConstraint([
    Sketcher.Constraint("Coincident", 0, 2, 1, 1),
    Sketcher.Constraint("Coincident", 1, 2, 2, 1),
    Sketcher.Constraint("Coincident", 2, 2, 3, 1),
    Sketcher.Constraint("Coincident", 3, 2, 0, 1),
    Sketcher.Constraint("Vertical", 0),
    Sketcher.Constraint("Horizontal", 1),
    Sketcher.Constraint("Vertical", 2),
    Sketcher.Constraint("Horizontal", 3),
    Sketcher.Constraint("DistanceX", 1, 1, 1, 2, 6.0),
    Sketcher.Constraint("DistanceY", 0, 2, 0, 1, 2.0),
    Sketcher.Constraint("DistanceX", -1, 1, 0, 2, 21.0),
    Sketcher.Constraint("DistanceY", 0, 2, -1, 1, 47.0),
])
pad21 = body31.newObject("PartDesign::Pad", "Pad020")
pad21.Profile = sketch21
pad21.Length = 6
body32 = doc.addObject("PartDesign::Body", "Body031")

sketch22 = body32.newObject("Sketcher::SketchObject", "Sketch021")
sketch22.AttachmentSupport = (doc.getObject("XY_Plane031"), [""])
sketch22.MapMode = "FlatFace"
sketch22.AttachmentOffset = App.Placement(Vector(0, 0, 4), App.Rotation())
sketch22.addGeometry([
    Part.LineSegment(Vector(48, -43, 0), Vector(48, -45, 0)),
    Part.LineSegment(Vector(48, -45, 0), Vector(54, -45, 0)),
    Part.LineSegment(Vector(54, -45, 0), Vector(54, -43, 0)),
    Part.LineSegment(Vector(54, -43, 0), Vector(48, -43, 0)),
], False)
sketch22.addConstraint([
    Sketcher.Constraint("Coincident", 0, 2, 1, 1),
    Sketcher.Constraint("Coincident", 1, 2, 2, 1),
    Sketcher.Constraint("Coincident", 2, 2, 3, 1),
    Sketcher.Constraint("Coincident", 3, 2, 0, 1),
    Sketcher.Constraint("Vertical", 0),
    Sketcher.Constraint("Horizontal", 1),
    Sketcher.Constraint("Vertical", 2),
    Sketcher.Constraint("Horizontal", 3),
    Sketcher.Constraint("DistanceX", 1, 1, 1, 2, 6.0),
    Sketcher.Constraint("DistanceY", 0, 2, 0, 1, 2.0),
    Sketcher.Constraint("DistanceX", -1, 1, 0, 2, 48.0),
    Sketcher.Constraint("DistanceY", 0, 2, -1, 1, 45.0),
])
pad22 = body32.newObject("PartDesign::Pad", "Pad021")
pad22.Profile = sketch22
pad22.Length = 6
body33 = doc.addObject("PartDesign::Body", "Body032")

sketch23 = body33.newObject("Sketcher::SketchObject", "Sketch022")
sketch23.AttachmentSupport = (doc.getObject("XY_Plane032"), [""])
sketch23.MapMode = "FlatFace"
sketch23.AttachmentOffset = App.Placement(Vector(0, 0, 4), App.Rotation())
sketch23.addGeometry([
    Part.LineSegment(Vector(-54, -43, 0), Vector(-54, -45, 0)),
    Part.LineSegment(Vector(-54, -45, 0), Vector(-48, -45, 0)),
    Part.LineSegment(Vector(-48, -45, 0), Vector(-48, -43, 0)),
    Part.LineSegment(Vector(-48, -43, 0), Vector(-54, -43, 0)),
], False)
sketch23.addConstraint([
    Sketcher.Constraint("Coincident", 0, 2, 1, 1),
    Sketcher.Constraint("Coincident", 1, 2, 2, 1),
    Sketcher.Constraint("Coincident", 2, 2, 3, 1),
    Sketcher.Constraint("Coincident", 3, 2, 0, 1),
    Sketcher.Constraint("Vertical", 0),
    Sketcher.Constraint("Horizontal", 1),
    Sketcher.Constraint("Vertical", 2),
    Sketcher.Constraint("Horizontal", 3),
    Sketcher.Constraint("DistanceX", 1, 1, 1, 2, 6.0),
    Sketcher.Constraint("DistanceY", 0, 2, 0, 1, 2.0),
    Sketcher.Constraint("DistanceX", 0, 2, -1, 1, 54.0),
    Sketcher.Constraint("DistanceY", 0, 2, -1, 1, 45.0),
])
pad23 = body33.newObject("PartDesign::Pad", "Pad022")
pad23.Profile = sketch23
pad23.Length = 6
body34 = doc.addObject("PartDesign::Body", "Body033")
body34.AllowCompound = True

sketch24 = body34.newObject("Sketcher::SketchObject", "Sketch023")
sketch24.AttachmentSupport = (doc.getObject("XY_Plane033"), [""])
sketch24.MapMode = "FlatFace"
sketch24.AttachmentOffset = App.Placement(Vector(0, 0, -8), App.Rotation())
sketch24.addGeometry([
    Part.LineSegment(Vector(-27, -45, 0), Vector(-27, -47, 0)),
    Part.LineSegment(Vector(-27, -47, 0), Vector(-21, -47, 0)),
    Part.LineSegment(Vector(-21, -47, 0), Vector(-21, -45, 0)),
    Part.LineSegment(Vector(-21, -45, 0), Vector(-27, -45, 0)),
], False)
sketch24.addConstraint([
    Sketcher.Constraint("Coincident", 0, 2, 1, 1),
    Sketcher.Constraint("Coincident", 1, 2, 2, 1),
    Sketcher.Constraint("Coincident", 2, 2, 3, 1),
    Sketcher.Constraint("Coincident", 3, 2, 0, 1),
    Sketcher.Constraint("Vertical", 0),
    Sketcher.Constraint("Horizontal", 1),
    Sketcher.Constraint("Vertical", 2),
    Sketcher.Constraint("Horizontal", 3),
    Sketcher.Constraint("DistanceX", 1, 1, 1, 2, 6.0),
    Sketcher.Constraint("DistanceY", 0, 2, 0, 1, 2.0),
    Sketcher.Constraint("DistanceX", 0, 2, -1, 1, 27.0),
    Sketcher.Constraint("DistanceY", 0, 2, -1, 1, 47.0),
])
pad24 = body34.newObject("PartDesign::Pad", "Pad023")
pad24.Profile = sketch24
pad24.Length = 6
doc.recompute()

boolean28 = body34.newObject("PartDesign::Boolean", "Boolean027")
boolean28.Type = "Fuse"
boolean28.addObjects([body31])
doc.recompute()

boolean29 = body34.newObject("PartDesign::Boolean", "Boolean028")
boolean29.Type = "Fuse"
boolean29.addObjects([body32])
doc.recompute()

boolean30 = body34.newObject("PartDesign::Boolean", "Boolean029")
boolean30.Type = "Fuse"
boolean30.addObjects([body33])
body35 = doc.addObject("PartDesign::Body", "Body034")

sketch25 = body35.newObject("Sketcher::SketchObject", "Sketch024")
sketch25.AttachmentSupport = (doc.getObject("XY_Plane034"), [""])
sketch25.MapMode = "FlatFace"
sketch25.AttachmentOffset = App.Placement(Vector(0, 0, -8), App.Rotation())
sketch25.addGeometry([
    Part.Circle(Vector(0, 0, 0), Vector(0, 0, 1), 52),
    Part.Circle(Vector(0, 0, 0), Vector(0, 0, 1), 42),
], False)
sketch25.addConstraint([
    Sketcher.Constraint("Coincident", 0, 3, -1, 1),
    Sketcher.Constraint("Coincident", 1, 3, -1, 1),
    Sketcher.Constraint("Diameter", 0, 104.0),
    Sketcher.Constraint("Diameter", 1, 84.0),
])
pad25 = body35.newObject("PartDesign::Pad", "Pad024")
pad25.Profile = sketch25
pad25.Length = 8
doc.recompute()

boolean31 = body35.newObject("PartDesign::Boolean", "Boolean030")
boolean31.Type = "Cut"
boolean31.addObjects([body34])
doc.recompute()

boolean32 = body35.newObject("PartDesign::Boolean", "Boolean031")
boolean32.Type = "Cut"
boolean32.addObjects([body30])
doc.recompute()

boolean33 = body35.newObject("PartDesign::Boolean", "Boolean032")
boolean33.Type = "Cut"
boolean33.addObjects([body26])
doc.recompute()

boolean34 = body35.newObject("PartDesign::Boolean", "Boolean033")
boolean34.Type = "Cut"
boolean34.addObjects([body13])
body36 = doc.addObject("PartDesign::Body", "Body035")
doc.recompute()

body35.Placement = App.Placement(Vector(0, 0, -6), App.Rotation(Vector(0, 0, 1), 0))
boolean35 = body36.newObject("PartDesign::Boolean", "Boolean034")
boolean35.Type = "Fuse"
boolean35.addObjects([body35])

doc.recompute()
